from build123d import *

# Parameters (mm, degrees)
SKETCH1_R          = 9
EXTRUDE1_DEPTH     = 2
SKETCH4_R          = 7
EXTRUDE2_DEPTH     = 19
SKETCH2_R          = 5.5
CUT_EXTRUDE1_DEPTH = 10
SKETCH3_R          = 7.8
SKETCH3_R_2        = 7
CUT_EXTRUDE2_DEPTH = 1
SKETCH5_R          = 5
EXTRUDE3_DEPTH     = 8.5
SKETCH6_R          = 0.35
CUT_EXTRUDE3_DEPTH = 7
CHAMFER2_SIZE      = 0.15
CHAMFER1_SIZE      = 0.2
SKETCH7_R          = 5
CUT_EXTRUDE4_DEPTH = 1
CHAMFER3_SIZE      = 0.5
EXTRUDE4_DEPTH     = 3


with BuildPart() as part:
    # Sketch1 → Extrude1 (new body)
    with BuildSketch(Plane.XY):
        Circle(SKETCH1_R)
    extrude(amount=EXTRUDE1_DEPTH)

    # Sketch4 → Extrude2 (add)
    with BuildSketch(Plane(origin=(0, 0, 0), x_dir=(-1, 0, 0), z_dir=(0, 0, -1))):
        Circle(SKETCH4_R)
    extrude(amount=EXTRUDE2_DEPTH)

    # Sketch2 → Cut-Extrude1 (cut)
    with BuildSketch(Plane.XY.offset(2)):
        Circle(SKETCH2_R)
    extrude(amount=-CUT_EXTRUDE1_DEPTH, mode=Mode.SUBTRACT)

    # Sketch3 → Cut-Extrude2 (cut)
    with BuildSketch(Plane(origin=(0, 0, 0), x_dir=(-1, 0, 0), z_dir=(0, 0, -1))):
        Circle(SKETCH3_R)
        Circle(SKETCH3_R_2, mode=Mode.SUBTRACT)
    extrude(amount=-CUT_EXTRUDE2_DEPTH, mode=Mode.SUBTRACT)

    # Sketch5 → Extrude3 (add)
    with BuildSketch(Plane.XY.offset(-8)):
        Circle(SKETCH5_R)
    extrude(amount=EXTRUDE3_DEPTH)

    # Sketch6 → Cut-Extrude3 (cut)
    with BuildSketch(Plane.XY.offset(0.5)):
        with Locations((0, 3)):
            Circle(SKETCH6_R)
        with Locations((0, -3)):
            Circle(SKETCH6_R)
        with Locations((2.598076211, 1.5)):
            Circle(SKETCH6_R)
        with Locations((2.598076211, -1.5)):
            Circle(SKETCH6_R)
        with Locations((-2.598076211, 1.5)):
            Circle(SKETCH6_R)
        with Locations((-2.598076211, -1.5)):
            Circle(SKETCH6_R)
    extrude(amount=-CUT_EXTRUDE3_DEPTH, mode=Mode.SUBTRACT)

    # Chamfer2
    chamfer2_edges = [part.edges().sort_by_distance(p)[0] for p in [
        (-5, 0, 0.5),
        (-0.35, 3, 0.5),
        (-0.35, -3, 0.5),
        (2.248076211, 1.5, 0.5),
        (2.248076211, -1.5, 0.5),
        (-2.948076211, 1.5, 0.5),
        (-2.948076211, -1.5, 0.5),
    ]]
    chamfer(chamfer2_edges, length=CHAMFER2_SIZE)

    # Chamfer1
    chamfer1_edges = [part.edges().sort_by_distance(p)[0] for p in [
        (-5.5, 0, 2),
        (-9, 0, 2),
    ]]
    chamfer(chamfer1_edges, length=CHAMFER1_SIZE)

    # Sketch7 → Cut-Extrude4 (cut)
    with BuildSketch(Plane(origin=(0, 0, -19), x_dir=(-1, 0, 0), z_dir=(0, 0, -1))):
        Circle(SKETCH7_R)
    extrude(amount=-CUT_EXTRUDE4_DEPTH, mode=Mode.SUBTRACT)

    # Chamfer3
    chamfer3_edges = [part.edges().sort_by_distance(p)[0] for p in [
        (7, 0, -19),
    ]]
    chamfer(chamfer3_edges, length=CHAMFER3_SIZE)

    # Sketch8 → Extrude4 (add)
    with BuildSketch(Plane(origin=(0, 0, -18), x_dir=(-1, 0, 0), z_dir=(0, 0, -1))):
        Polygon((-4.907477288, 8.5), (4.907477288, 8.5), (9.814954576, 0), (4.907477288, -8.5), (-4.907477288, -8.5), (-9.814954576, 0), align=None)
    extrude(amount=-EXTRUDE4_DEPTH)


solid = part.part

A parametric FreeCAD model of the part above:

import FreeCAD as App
import Part
import Sketcher
from FreeCAD import Vector
Q = App.Units.Quantity


def edges_at(feature, points):
    """Names of the edges that pass closest to the given points."""
    edges = feature.Shape.Edges
    near = lambda p: min(range(len(edges)), key=lambda i: edges[i].distToShape(Part.Vertex(*p))[0])
    return sorted({f"Edge{near(p) + 1}" for p in points})

doc = App.newDocument("Part")
params = doc.addObject("Spreadsheet::Sheet", "Params")
for row, (alias, value) in enumerate([
    ("sketch1_diameter", "18 mm"),
    ("pad1_length", "2 mm"),
    ("sketch2_diameter", "14 mm"),
    ("pad2_length", "19 mm"),
    ("sketch3_diameter", "11 mm"),
    ("pocket1_length", "10 mm"),
    ("sketch4_diameter", "14 mm"),
    ("sketch4_diameter2", "15.6 mm"),
    ("pocket2_length", "1 mm"),
    ("sketch5_diameter", "10 mm"),
    ("pad3_length", "8.5 mm"),
    ("sketch6_diameter", "0.7 mm"),
    ("pocket3_length", "7 mm"),
    ("chamfer_size", "0.15 mm"),
    ("chamfer2_size", "0.2 mm"),
    ("sketch7_diameter", "10 mm"),
    ("pocket4_length", "1 mm"),
    ("chamfer3_size", "0.5 mm"),
    ("pad4_length", "3 mm"),
], start=1):
    params.set(f"A{row}", alias)
    params.set(f"B{row}", "=" + value)
    params.setAlias(f"B{row}", alias)

body = doc.addObject("PartDesign::Body", "Body")

# Sketch on XY plane
sketch1 = body.newObject("Sketcher::SketchObject", "Sketch")
sketch1.AttachmentSupport = (doc.getObject("XY_Plane"), [""])
sketch1.MapMode = "FlatFace"
sketch1.addGeometry(Part.Circle(Vector(0, 0, 0), Vector(0, 0, 1), 9), False)
sketch1.addConstraint([
    Sketcher.Constraint("Coincident", 0, 3, -1, 1),
    Sketcher.Constraint("Diameter", 0, 18.0),
])
sketch1.setExpression("Constraints[1]", "Params.sketch1_diameter")
pad1 = body.newObject("PartDesign::Pad", "Pad")
pad1.Profile = sketch1
pad1.setExpression("Length", "Params.pad1_length")

# Sketch on XY plane
sketch2 = body.newObject("Sketcher::SketchObject", "Sketch001")
sketch2.AttachmentSupport = (doc.getObject("XY_Plane"), [""])
sketch2.MapMode = "FlatFace"
sketch2.addGeometry(Part.Circle(Vector(0, 0, 0), Vector(0, 0, 1), 7), False)
sketch2.addConstraint([
    Sketcher.Constraint("Coincident", 0, 3, -1, 1),
    Sketcher.Constraint("Diameter", 0, 14.0),
])
sketch2.setExpression("Constraints[1]", "Params.sketch2_diameter")
pad2 = body.newObject("PartDesign::Pad", "Pad001")
pad2.Profile = sketch2
pad2.setExpression("Length", "Params.pad2_length")
pad2.Reversed = True

# Sketch on XY plane
sketch3 = body.newObject("Sketcher::SketchObject", "Sketch002")
sketch3.AttachmentSupport = (doc.getObject("XY_Plane"), [""])
sketch3.MapMode = "FlatFace"
sketch3.AttachmentOffset = App.Placement(Vector(0, 0, 2), App.Rotation())
sketch3.addGeometry(Part.Circle(Vector(0, 0, 0), Vector(0, 0, 1), 5.5), False)
sketch3.addConstraint([
    Sketcher.Constraint("Coincident", 0, 3, -1, 1),
    Sketcher.Constraint("Diameter", 0, 11.0),
])
sketch3.setExpression("Constraints[1]", "Params.sketch3_diameter")
pocket1 = body.newObject("PartDesign::Pocket", "Pocket")
pocket1.Profile = sketch3
pocket1.setExpression("Length", "Params.pocket1_length")

# Sketch on XY plane
sketch4 = body.newObject("Sketcher::SketchObject", "Sketch003")
sketch4.AttachmentSupport = (doc.getObject("XY_Plane"), [""])
sketch4.MapMode = "FlatFace"
sketch4.addGeometry([
    Part.Circle(Vector(0, 0, 0), Vector(0, 0, 1), 7.8),
    Part.Circle(Vector(0, 0, 0), Vector(0, 0, 1), 7),
], False)
sketch4.addConstraint([
    Sketcher.Constraint("Coincident", 0, 3, -1, 1),
    Sketcher.Constraint("Coincident", 1, 3, -1, 1),
    Sketcher.Constraint("Diameter", 1, 14.0),
    Sketcher.Constraint("Diameter", 0, 15.6),
])
sketch4.setExpression("Constraints[2]", "Params.sketch4_diameter")
sketch4.setExpression("Constraints[3]", "Params.sketch4_diameter2")
pocket2 = body.newObject("PartDesign::Pocket", "Pocket001")
pocket2.Profile = sketch4
pocket2.setExpression("Length", "Params.pocket2_length")
pocket2.Reversed = True

# Sketch on XY plane
sketch5 = body.newObject("Sketcher::SketchObject", "Sketch004")
sketch5.AttachmentSupport = (doc.getObject("XY_Plane"), [""])
sketch5.MapMode = "FlatFace"
sketch5.AttachmentOffset = App.Placement(Vector(0, 0, -8), App.Rotation())
sketch5.addGeometry(Part.Circle(Vector(0, 0, 0), Vector(0, 0, 1), 5), False)
sketch5.addConstraint([
    Sketcher.Constraint("Coincident", 0, 3, -1, 1),
    Sketcher.Constraint("Diameter", 0, 10.0),
])
sketch5.setExpression("Constraints[1]", "Params.sketch5_diameter")
pad3 = body.newObject("PartDesign::Pad", "Pad002")
pad3.Profile = sketch5
pad3.setExpression("Length", "Params.pad3_length")

# Sketch on XY plane
sketch6 = body.newObject("Sketcher::SketchObject", "Sketch005")
sketch6.AttachmentSupport = (doc.getObject("XY_Plane"), [""])
sketch6.MapMode = "FlatFace"
sketch6.AttachmentOffset = App.Placement(Vector(0, 0, 0.5), App.Rotation())
sketch6.addGeometry([
    Part.Circle(Vector(0, 3, 0), Vector(0, 0, 1), 0.35),  # 0
    Part.Circle(Vector(0, -3, 0), Vector(0, 0, 1), 0.35),  # 1
    Part.Circle(Vector(2.598076, 1.5, 0), Vector(0, 0, 1), 0.35),  # 2
    Part.Circle(Vector(2.598076, -1.5, 0), Vector(0, 0, 1), 0.35),  # 3
    Part.Circle(Vector(-2.598076, 1.5, 0), Vector(0, 0, 1), 0.35),  # 4
    Part.Circle(Vector(-2.598076, -1.5, 0), Vector(0, 0, 1), 0.35),  # 5
], False)
sketch6.addConstraint([
    Sketcher.Constraint("Equal", 0, 1),
    Sketcher.Constraint("Equal", 1, 2),
    Sketcher.Constraint("Equal", 2, 3),
    Sketcher.Constraint("Equal", 3, 4),
    Sketcher.Constraint("Equal", 4, 5),
    Sketcher.Constraint("Symmetric", 0, 3, 1, 3, -1, 1),
    Sketcher.Constraint("Symmetric", 3, 3, 4, 3, -1, 1),
    Sketcher.Constraint("Symmetric", 2, 3, 5, 3, -1, 1),
    Sketcher.Constraint("Symmetric", 2, 3, 4, 3, -2),
    Sketcher.Constraint("PointOnObject", 0, 3, -2),
    Sketcher.Constraint("Diameter", 0, 0.7),
    Sketcher.Constraint("DistanceY", -1, 1, 0, 3, 3.0),
    Sketcher.Constraint("DistanceY", 3, 3, 2, 3, 3.0),
    Sketcher.Constraint("DistanceX", -1, 1, 2, 3, 2.598076),
])
sketch6.setExpression("Constraints[10]", "Params.sketch6_diameter")
pocket3 = body.newObject("PartDesign::Pocket", "Pocket002")
pocket3.Profile = sketch6
pocket3.setExpression("Length", "Params.pocket3_length")
doc.recompute()

chamfer = body.newObject("PartDesign::Chamfer", "Chamfer")
chamfer.Base = (pocket3, edges_at(pocket3, [
    (-5, 0, 0.5),
    (-0.35, 3, 0.5),
    (-0.35, -3, 0.5),
    (2.248, 1.5, 0.5),
    (2.248, -1.5, 0.5),
    (-2.948, 1.5, 0.5),
    (-2.948, -1.5, 0.5),
]))
chamfer.setExpression("Size", "Params.chamfer_size")
doc.recompute()

chamfer2 = body.newObject("PartDesign::Chamfer", "Chamfer001")
chamfer2.Base = (chamfer, edges_at(chamfer, [(-5.5, 0, 2), (-9, 0, 2)]))
chamfer2.setExpression("Size", "Params.chamfer2_size")

# Sketch on XY plane
sketch7 = body.newObject("Sketcher::SketchObject", "Sketch006")
sketch7.AttachmentSupport = (doc.getObject("XY_Plane"), [""])
sketch7.MapMode = "FlatFace"
sketch7.AttachmentOffset = App.Placement(Vector(0, 0, -19), App.Rotation())
sketch7.addGeometry(Part.Circle(Vector(0, 0, 0), Vector(0, 0, 1), 5), False)
sketch7.addConstraint([
    Sketcher.Constraint("Coincident", 0, 3, -1, 1),
    Sketcher.Constraint("Diameter", 0, 10.0),
])
sketch7.setExpression("Constraints[1]", "Params.sketch7_diameter")
pocket4 = body.newObject("PartDesign::Pocket", "Pocket003")
pocket4.Profile = sketch7
pocket4.setExpression("Length", "Params.pocket4_length")
pocket4.Reversed = True
doc.recompute()

chamfer3 = body.newObject("PartDesign::Chamfer", "Chamfer002")
chamfer3.Base = (pocket4, edges_at(pocket4, [(7, 0, -19)]))
chamfer3.setExpression("Size", "Params.chamfer3_size")

# Sketch on XY plane
sketch8 = body.newObject("Sketcher::SketchObject", "Sketch007")
sketch8.AttachmentSupport = (doc.getObject("XY_Plane"), [""])
sketch8.MapMode = "FlatFace"
sketch8.AttachmentOffset = App.Placement(Vector(0, 0, -18), App.Rotation())
sketch8.addGeometry([
    Part.LineSegment(Vector(-4.907477, 8.5, 0), Vector(4.907477, 8.5, 0)),  # 0
    Part.LineSegment(Vector(4.907477, 8.5, 0), Vector(9.814955, 0, 0)),  # 1
    Part.LineSegment(Vector(9.814955, 0, 0), Vector(4.907477, -8.5, 0)),  # 2
    Part.LineSegment(Vector(4.907477, -8.5, 0), Vector(-4.907477, -8.5, 0)),  # 3
    Part.LineSegment(Vector(-4.907477, -8.5, 0), Vector(-9.814955, 0, 0)),  # 4
    Part.LineSegment(Vector(-9.814955, 0, 0), Vector(-4.907477, 8.5, 0)),  # 5
], False)
sketch8.addConstraint([
    Sketcher.Constraint("Coincident", 0, 2, 1, 1),
    Sketcher.Constraint("Coincident", 1, 2, 2, 1),
    Sketcher.Constraint("Coincident", 2, 2, 3, 1),
    Sketcher.Constraint("Coincident", 3, 2, 4, 1),
    Sketcher.Constraint("Coincident", 4, 2, 5, 1),
    Sketcher.Constraint("Coincident", 5, 2, 0, 1),
    Sketcher.Constraint("Horizontal", 0),
    Sketcher.Constraint("Horizontal", 3),
    Sketcher.Constraint("Symmetric", 0, 2, 3, 2, -1, 1),
    Sketcher.Constraint("Symmetric", 1, 2, 4, 2, -1, 1),
    Sketcher.Constraint("PointOnObject", 1, 2, -1),
    Sketcher.Constraint("Parallel", 2, 5),
    Sketcher.Constraint("Vertical", 0, 2, 2, 2),
    Sketcher.Constraint("Angle", 1, Q("-60 deg")),
    Sketcher.Constraint("DistanceY", 2, 2, 0, 2, 17.0),
    Sketcher.Constraint("DistanceX", 0, 1, 0, 2, 9.814955),
])
pad4 = body.newObject("PartDesign::Pad", "Pad003")
pad4.Profile = sketch8
pad4.setExpression("Length", "Params.pad4_length")

doc.recompute()
